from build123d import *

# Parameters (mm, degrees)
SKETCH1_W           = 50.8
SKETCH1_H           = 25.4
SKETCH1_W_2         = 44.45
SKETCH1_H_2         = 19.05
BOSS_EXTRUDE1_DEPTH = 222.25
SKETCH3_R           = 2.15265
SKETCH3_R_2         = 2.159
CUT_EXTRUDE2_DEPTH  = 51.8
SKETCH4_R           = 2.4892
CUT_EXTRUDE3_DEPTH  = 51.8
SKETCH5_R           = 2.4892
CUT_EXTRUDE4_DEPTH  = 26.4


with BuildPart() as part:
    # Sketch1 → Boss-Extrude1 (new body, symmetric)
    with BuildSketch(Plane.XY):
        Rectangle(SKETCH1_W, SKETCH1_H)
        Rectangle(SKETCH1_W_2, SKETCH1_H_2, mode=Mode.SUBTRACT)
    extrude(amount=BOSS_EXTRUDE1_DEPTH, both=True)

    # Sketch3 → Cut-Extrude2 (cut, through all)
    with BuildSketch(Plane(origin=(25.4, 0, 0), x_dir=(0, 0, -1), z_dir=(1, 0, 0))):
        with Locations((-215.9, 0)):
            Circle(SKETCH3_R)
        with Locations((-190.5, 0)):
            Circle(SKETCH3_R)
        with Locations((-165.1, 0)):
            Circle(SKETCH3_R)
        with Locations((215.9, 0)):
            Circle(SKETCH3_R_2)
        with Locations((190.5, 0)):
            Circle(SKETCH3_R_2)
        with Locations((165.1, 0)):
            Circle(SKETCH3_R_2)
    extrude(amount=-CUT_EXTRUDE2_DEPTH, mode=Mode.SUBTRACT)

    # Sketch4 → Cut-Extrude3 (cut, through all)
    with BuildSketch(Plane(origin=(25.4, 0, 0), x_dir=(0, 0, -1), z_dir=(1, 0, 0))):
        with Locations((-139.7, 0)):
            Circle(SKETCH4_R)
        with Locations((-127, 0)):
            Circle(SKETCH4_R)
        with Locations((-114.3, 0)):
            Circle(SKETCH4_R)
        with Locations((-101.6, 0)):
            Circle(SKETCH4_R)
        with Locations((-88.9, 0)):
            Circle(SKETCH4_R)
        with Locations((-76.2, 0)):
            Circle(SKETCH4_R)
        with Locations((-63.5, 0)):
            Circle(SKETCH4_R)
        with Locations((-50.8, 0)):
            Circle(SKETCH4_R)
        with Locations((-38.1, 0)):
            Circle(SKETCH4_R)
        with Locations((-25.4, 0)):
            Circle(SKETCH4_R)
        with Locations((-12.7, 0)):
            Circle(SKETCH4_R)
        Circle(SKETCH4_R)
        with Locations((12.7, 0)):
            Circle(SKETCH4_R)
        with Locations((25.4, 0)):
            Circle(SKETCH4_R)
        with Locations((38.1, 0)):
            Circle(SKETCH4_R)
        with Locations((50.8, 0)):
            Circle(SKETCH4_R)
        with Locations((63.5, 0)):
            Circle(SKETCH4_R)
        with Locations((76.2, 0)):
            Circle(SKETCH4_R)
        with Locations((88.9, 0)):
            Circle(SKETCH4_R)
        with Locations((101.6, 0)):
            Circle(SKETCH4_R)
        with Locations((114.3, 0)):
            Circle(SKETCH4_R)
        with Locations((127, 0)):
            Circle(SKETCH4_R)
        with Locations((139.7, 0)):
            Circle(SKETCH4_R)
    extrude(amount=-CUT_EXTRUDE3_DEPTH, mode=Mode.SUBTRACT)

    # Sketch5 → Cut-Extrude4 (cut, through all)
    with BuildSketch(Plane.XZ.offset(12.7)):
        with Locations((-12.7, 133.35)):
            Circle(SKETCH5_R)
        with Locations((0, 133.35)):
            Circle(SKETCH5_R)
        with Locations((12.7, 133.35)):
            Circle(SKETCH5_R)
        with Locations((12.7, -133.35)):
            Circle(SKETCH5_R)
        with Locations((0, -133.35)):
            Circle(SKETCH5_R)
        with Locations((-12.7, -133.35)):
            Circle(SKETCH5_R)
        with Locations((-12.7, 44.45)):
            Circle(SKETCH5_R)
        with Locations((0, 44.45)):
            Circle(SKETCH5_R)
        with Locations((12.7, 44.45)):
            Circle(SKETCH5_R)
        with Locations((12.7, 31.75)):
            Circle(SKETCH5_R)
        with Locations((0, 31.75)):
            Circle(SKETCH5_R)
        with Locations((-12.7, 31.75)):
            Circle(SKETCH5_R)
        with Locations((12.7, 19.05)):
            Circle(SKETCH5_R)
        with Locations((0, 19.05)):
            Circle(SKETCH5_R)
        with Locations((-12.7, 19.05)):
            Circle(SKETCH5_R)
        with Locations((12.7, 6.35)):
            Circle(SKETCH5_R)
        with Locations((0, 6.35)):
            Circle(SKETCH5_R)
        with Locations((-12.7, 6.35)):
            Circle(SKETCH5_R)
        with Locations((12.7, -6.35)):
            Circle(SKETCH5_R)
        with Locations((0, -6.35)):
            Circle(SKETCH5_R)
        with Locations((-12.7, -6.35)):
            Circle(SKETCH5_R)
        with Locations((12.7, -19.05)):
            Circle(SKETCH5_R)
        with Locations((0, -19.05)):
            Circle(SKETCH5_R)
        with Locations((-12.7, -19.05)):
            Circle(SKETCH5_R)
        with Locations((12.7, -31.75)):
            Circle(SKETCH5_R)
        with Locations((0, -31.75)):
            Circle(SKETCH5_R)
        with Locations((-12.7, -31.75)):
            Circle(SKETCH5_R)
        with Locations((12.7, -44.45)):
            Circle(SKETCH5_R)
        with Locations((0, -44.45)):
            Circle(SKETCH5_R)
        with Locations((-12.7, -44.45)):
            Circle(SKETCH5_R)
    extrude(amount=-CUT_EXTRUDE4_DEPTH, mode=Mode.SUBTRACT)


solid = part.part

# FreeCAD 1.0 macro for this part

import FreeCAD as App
import Part
import Sketcher
from FreeCAD import Vector
Q = App.Units.Quantity


def add_polygon(sketch, points):
    """Adds a closed chain of lines whose ends are joined by coincident constraints."""
    first, n = sketch.GeometryCount, len(points)
    for a, b in zip(points, points[1:] + points[:1]):
        sketch.addGeometry(Part.LineSegment(App.Vector(*a, 0), App.Vector(*b, 0)), False)
    for i in range(n):
        sketch.addConstraint(Sketcher.Constraint("Coincident", first + i, 2, first + (i + 1) % n, 1))

doc = App.newDocument("Part")
params = doc.addObject("Spreadsheet::Sheet", "Params")
for row, (alias, value) in enumerate([
    ("sketch1_width", "2 in"),
    ("sketch1_height", "1 in"),
    ("sketch1_width2", "1.75 in"),
    ("sketch1_height2", "0.75 in"),
    ("pad1_length", "17.5 in"),
    ("sketch2_diameter", "0.17 in"),
    ("sketch3_diameter", "0.196 in"),
    ("sketch4_diameter", "0.196 in"),
], start=1):
    params.set(f"A{row}", alias)
    params.set(f"B{row}", "=" + value)
    params.setAlias(f"B{row}", alias)

body = doc.addObject("PartDesign::Body", "Body")

# Sketch on XY plane
sketch1 = doc.addObject("Sketcher::SketchObject", "Sketch")
body.addObject(sketch1)
sketch1.AttachmentSupport = (doc.XY_Plane, [""])
sketch1.MapMode = "FlatFace"
add_polygon(sketch1, [(-25.4, 12.7), (-25.4, -12.7), (25.4, -12.7), (25.4, 12.7)])  # lines 0-3
add_polygon(sketch1, [(22.225, -9.525), (-22.225, -9.525), (-22.225, 9.525), (22.225, 9.525)])  # lines 4-7
sketch1.addConstraint([
    Sketcher.Constraint("Vertical", 0),
    Sketcher.Constraint("Horizontal", 1),
    Sketcher.Constraint("Vertical", 2),
    Sketcher.Constraint("Horizontal", 3),
    Sketcher.Constraint("Horizontal", 4),
    Sketcher.Constraint("Vertical", 5),
    Sketcher.Constraint("Horizontal", 6),
    Sketcher.Constraint("Vertical", 7),
    Sketcher.Constraint("Symmetric", 0, 2, 2, 2, -1, 1),
    Sketcher.Constraint("Symmetric", 4, 2, 6, 2, -1, 1),
    Sketcher.Constraint("DistanceX", 1, 1, 1, 2, Q("2 in")),
    Sketcher.Constraint("DistanceY", 0, 2, 0, 1, Q("1 in")),
    Sketcher.Constraint("DistanceX", 4, 2, 4, 1, Q("1.75 in")),
    Sketcher.Constraint("DistanceY", 5, 1, 5, 2, Q("0.75 in")),
])
sketch1.setExpression("Constraints[18]", "Params.sketch1_width")
sketch1.setExpression("Constraints[19]", "Params.sketch1_height")
sketch1.setExpression("Constraints[20]", "Params.sketch1_width2")
sketch1.setExpression("Constraints[21]", "Params.sketch1_height2")
pad1 = doc.addObject("PartDesign::Pad", "Pad")
body.addObject(pad1)
pad1.Profile = sketch1
pad1.setExpression("Length", "Params.pad1_length")
pad1.Midplane = True

# Sketch on YZ plane
sketch2 = doc.addObject("Sketcher::SketchObject", "Sketch001")
body.addObject(sketch2)
sketch2.AttachmentSupport = (doc.YZ_Plane, [""])
sketch2.MapMode = "FlatFace"
sketch2.AttachmentOffset = App.Placement(Vector(0, 0, 1 * 25.4), App.Rotation())
sketch2.addGeometry([
    Part.Circle(Vector(0, 215.9, 0), Vector(0, 0, 1), 2.15265),  # 0
    Part.Circle(Vector(0, 190.5, 0), Vector(0, 0, 1), 2.15265),  # 1
    Part.Circle(Vector(0, 165.1, 0), Vector(0, 0, 1), 2.15265),  # 2
    Part.Circle(Vector(0, -215.9, 0), Vector(0, 0, 1), 2.159),  # 3
    Part.Circle(Vector(0, -190.5, 0), Vector(0, 0, 1), 2.159),  # 4
    Part.Circle(Vector(0, -165.1, 0), Vector(0, 0, 1), 2.159),  # 5
], False)
sketch2.addConstraint([
    Sketcher.Constraint("Equal", 0, 1),
    Sketcher.Constraint("Equal", 1, 2),
    Sketcher.Constraint("Equal", 3, 4),
    Sketcher.Constraint("Equal", 4, 5),
    Sketcher.Constraint("Symmetric", 0, 3, 3, 3, -1, 1),
    Sketcher.Constraint("Symmetric", 1, 3, 4, 3, -1, 1),
    Sketcher.Constraint("Symmetric", 2, 3, 5, 3, -1, 1),
    Sketcher.Constraint("PointOnObject", 0, 3, -2),
    Sketcher.Constraint("PointOnObject", 1, 3, -2),
    Sketcher.Constraint("PointOnObject", 2, 3, -2),
    Sketcher.Constraint("Diameter", 3, Q("0.17 in")),
    Sketcher.Constraint("DistanceY", 1, 3, 0, 3, Q("1 in")),
    Sketcher.Constraint("DistanceY", 2, 3, 1, 3, Q("1 in")),
    Sketcher.Constraint("DistanceY", 3, 3, 2, 3, Q("15 in")),
    Sketcher.Constraint("Diameter", 0, Q("0.1695 in")),
])
sketch2.setExpression("Constraints[10]", "Params.sketch2_diameter")
pocket1 = doc.addObject("PartDesign::Pocket", "Pocket")
body.addObject(pocket1)
pocket1.Profile = sketch2
pocket1.Type = "ThroughAll"

# Sketch on YZ plane
sketch3 = doc.addObject("Sketcher::SketchObject", "Sketch002")
body.addObject(sketch3)
sketch3.AttachmentSupport = (doc.YZ_Plane, [""])
sketch3.MapMode = "FlatFace"
sketch3.AttachmentOffset = App.Placement(Vector(0, 0, 1 * 25.4), App.Rotation())
sketch3.addGeometry([
    Part.Circle(Vector(0, 139.7, 0), Vector(0, 0, 1), 2.4892),  # 0
    Part.Circle(Vector(0, 127, 0), Vector(0, 0, 1), 2.4892),  # 1
    Part.Circle(Vector(0, 114.3, 0), Vector(0, 0, 1), 2.4892),  # 2
    Part.Circle(Vector(0, 101.6, 0), Vector(0, 0, 1), 2.4892),  # 3
    Part.Circle(Vector(0, 88.9, 0), Vector(0, 0, 1), 2.4892),  # 4
    Part.Circle(Vector(0, 76.2, 0), Vector(0, 0, 1), 2.4892),  # 5
    Part.Circle(Vector(0, 63.5, 0), Vector(0, 0, 1), 2.4892),  # 6
    Part.Circle(Vector(0, 50.8, 0), Vector(0, 0, 1), 2.4892),  # 7
    Part.Circle(Vector(0, 38.1, 0), Vector(0, 0, 1), 2.4892),  # 8
    Part.Circle(Vector(0, 25.4, 0), Vector(0, 0, 1), 2.4892),  # 9
    Part.Circle(Vector(0, 12.7, 0), Vector(0, 0, 1), 2.4892),  # 10
    Part.Circle(Vector(0, 0, 0), Vector(0, 0, 1), 2.4892),  # 11
    Part.Circle(Vector(0, -12.7, 0), Vector(0, 0, 1), 2.4892),  # 12
    Part.Circle(Vector(0, -25.4, 0), Vector(0, 0, 1), 2.4892),  # 13
    Part.Circle(Vector(0, -38.1, 0), Vector(0, 0, 1), 2.4892),  # 14
    Part.Circle(Vector(0, -50.8, 0), Vector(0, 0, 1), 2.4892),  # 15
    Part.Circle(Vector(0, -63.5, 0), Vector(0, 0, 1), 2.4892),  # 16
    Part.Circle(Vector(0, -76.2, 0), Vector(0, 0, 1), 2.4892),  # 17
    Part.Circle(Vector(0, -88.9, 0), Vector(0, 0, 1), 2.4892),  # 18
    Part.Circle(Vector(0, -101.6, 0), Vector(0, 0, 1), 2.4892),  # 19
    Part.Circle(Vector(0, -114.3, 0), Vector(0, 0, 1), 2.4892),  # 20
    Part.Circle(Vector(0, -127, 0), Vector(0, 0, 1), 2.4892),  # 21
    Part.Circle(Vector(0, -139.7, 0), Vector(0, 0, 1), 2.4892),  # 22
], False)
sketch3.addConstraint([
    Sketcher.Constraint("Coincident", 11, 3, -1, 1),
    Sketcher.Constraint("Equal", 0, 1),
    Sketcher.Constraint("Equal", 1, 2),
    Sketcher.Constraint("Equal", 2, 3),
    Sketcher.Constraint("Equal", 3, 4),
    Sketcher.Constraint("Equal", 4, 5),
    Sketcher.Constraint("Equal", 5, 6),
    Sketcher.Constraint("Equal", 6, 7),
    Sketcher.Constraint("Equal", 7, 8),
    Sketcher.Constraint("Equal", 8, 9),
    Sketcher.Constraint("Equal", 9, 10),
    Sketcher.Constraint("Equal", 10, 11),
    Sketcher.Constraint("Equal", 11, 12),
    Sketcher.Constraint("Equal", 12, 13),
    Sketcher.Constraint("Equal", 13, 14),
    Sketcher.Constraint("Equal", 14, 15),
    Sketcher.Constraint("Equal", 15, 16),
    Sketcher.Constraint("Equal", 16, 17),
    Sketcher.Constraint("Equal", 17, 18),
    Sketcher.Constraint("Equal", 18, 19),
    Sketcher.Constraint("Equal", 19, 20),
    Sketcher.Constraint("Equal", 20, 21),
    Sketcher.Constraint("Equal", 21, 22),
    Sketcher.Constraint("Symmetric", 10, 3, 12, 3, -1, 1),
    Sketcher.Constraint("Symmetric", 9, 3, 13, 3, -1, 1),
    Sketcher.Constraint("Symmetric", 8, 3, 14, 3, -1, 1),
    Sketcher.Constraint("Symmetric", 7, 3, 15, 3, -1, 1),
    Sketcher.Constraint("Symmetric", 6, 3, 16, 3, -1, 1),
    Sketcher.Constraint("Symmetric", 5, 3, 17, 3, -1, 1),
    Sketcher.Constraint("Symmetric", 4, 3, 18, 3, -1, 1),
    Sketcher.Constraint("Symmetric", 3, 3, 19, 3, -1, 1),
    Sketcher.Constraint("Symmetric", 2, 3, 20, 3, -1, 1),
    Sketcher.Constraint("Symmetric", 1, 3, 21, 3, -1, 1),
    Sketcher.Constraint("Symmetric", 0, 3, 22, 3, -1, 1),
    Sketcher.Constraint("PointOnObject", 0, 3, -2),
    Sketcher.Constraint("PointOnObject", 1, 3, -2),
    Sketcher.Constraint("PointOnObject", 2, 3, -2),
    Sketcher.Constraint("PointOnObject", 3, 3, -2),
    Sketcher.Constraint("PointOnObject", 4, 3, -2),
    Sketcher.Constraint("PointOnObject", 5, 3, -2),
    Sketcher.Constraint("PointOnObject", 6, 3, -2),
    Sketcher.Constraint("PointOnObject", 7, 3, -2),
    Sketcher.Constraint("PointOnObject", 8, 3, -2),
    Sketcher.Constraint("PointOnObject", 9, 3, -2),
    Sketcher.Constraint("PointOnObject", 10, 3, -2),
    Sketcher.Constraint("Diameter", 0, Q("0.196 in")),
    Sketcher.Constraint("DistanceY", -1, 1, 1, 3, Q("5 in")),
    Sketcher.Constraint("DistanceY", -1, 1, 3, 3, Q("4 in")),
    Sketcher.Constraint("DistanceY", -1, 1, 5, 3, Q("3 in")),
    Sketcher.Constraint("DistanceY", -1, 1, 7, 3, Q("2 in")),
    Sketcher.Constraint("DistanceY", -1, 1, 9, 3, Q("1 in")),
    Sketcher.Constraint("DistanceY", 2, 3, 0, 3, Q("1 in")),
    Sketcher.Constraint("DistanceY", 4, 3, 2, 3, Q("1 in")),
    Sketcher.Constraint("DistanceY", 6, 3, 4, 3, Q("1 in")),
    Sketcher.Constraint("DistanceY", 8, 3, 6, 3, Q("1 in")),
    Sketcher.Constraint("DistanceY", 10, 3, 8, 3, Q("1 in")),
    Sketcher.Constraint("DistanceY", 12, 3, 10, 3, Q("1 in")),
])
sketch3.setExpression("Constraints[45]", "Params.sketch3_diameter")
pocket2 = doc.addObject("PartDesign::Pocket", "Pocket001")
body.addObject(pocket2)
pocket2.Profile = sketch3
pocket2.Type = "ThroughAll"

# Sketch on XZ plane
sketch4 = doc.addObject("Sketcher::SketchObject", "Sketch003")
body.addObject(sketch4)
sketch4.AttachmentSupport = (doc.XZ_Plane, [""])
sketch4.MapMode = "FlatFace"
sketch4.AttachmentOffset = App.Placement(Vector(0, 0, 0.5 * 25.4), App.Rotation())
sketch4.addGeometry([
    Part.Circle(Vector(-12.7, 133.35, 0), Vector(0, 0, 1), 2.4892),  # 0
    Part.Circle(Vector(0, 133.35, 0), Vector(0, 0, 1), 2.4892),  # 1
    Part.Circle(Vector(12.7, 133.35, 0), Vector(0, 0, 1), 2.4892),  # 2
    Part.Circle(Vector(12.7, -133.35, 0), Vector(0, 0, 1), 2.4892),  # 3
    Part.Circle(Vector(0, -133.35, 0), Vector(0, 0, 1), 2.4892),  # 4
    Part.Circle(Vector(-12.7, -133.35, 0), Vector(0, 0, 1), 2.4892),  # 5
    Part.Circle(Vector(-12.7, 44.45, 0), Vector(0, 0, 1), 2.4892),  # 6
    Part.Circle(Vector(0, 44.45, 0), Vector(0, 0, 1), 2.4892),  # 7
    Part.Circle(Vector(12.7, 44.45, 0), Vector(0, 0, 1), 2.4892),  # 8
    Part.Circle(Vector(12.7, 31.75, 0), Vector(0, 0, 1), 2.4892),  # 9
    Part.Circle(Vector(0, 31.75, 0), Vector(0, 0, 1), 2.4892),  # 10
    Part.Circle(Vector(-12.7, 31.75, 0), Vector(0, 0, 1), 2.4892),  # 11
    Part.Circle(Vector(12.7, 19.05, 0), Vector(0, 0, 1), 2.4892),  # 12
    Part.Circle(Vector(0, 19.05, 0), Vector(0, 0, 1), 2.4892),  # 13
    Part.Circle(Vector(-12.7, 19.05, 0), Vector(0, 0, 1), 2.4892),  # 14
    Part.Circle(Vector(12.7, 6.35, 0), Vector(0, 0, 1), 2.4892),  # 15
    Part.Circle(Vector(0, 6.35, 0), Vector(0, 0, 1), 2.4892),  # 16
    Part.Circle(Vector(-12.7, 6.35, 0), Vector(0, 0, 1), 2.4892),  # 17
    Part.Circle(Vector(12.7, -6.35, 0), Vector(0, 0, 1), 2.4892),  # 18
    Part.Circle(Vector(0, -6.35, 0), Vector(0, 0, 1), 2.4892),  # 19
    Part.Circle(Vector(-12.7, -6.35, 0), Vector(0, 0, 1), 2.4892),  # 20
    Part.Circle(Vector(12.7, -19.05, 0), Vector(0, 0, 1), 2.4892),  # 21
    Part.Circle(Vector(0, -19.05, 0), Vector(0, 0, 1), 2.4892),  # 22
    Part.Circle(Vector(-12.7, -19.05, 0), Vector(0, 0, 1), 2.4892),  # 23
    Part.Circle(Vector(12.7, -31.75, 0), Vector(0, 0, 1), 2.4892),  # 24
    Part.Circle(Vector(0, -31.75, 0), Vector(0, 0, 1), 2.4892),  # 25
    Part.Circle(Vector(-12.7, -31.75, 0), Vector(0, 0, 1), 2.4892),  # 26
    Part.Circle(Vector(12.7, -44.45, 0), Vector(0, 0, 1), 2.4892),  # 27
    Part.Circle(Vector(0, -44.45, 0), Vector(0, 0, 1), 2.4892),  # 28
    Part.Circle(Vector(-12.7, -44.45, 0), Vector(0, 0, 1), 2.4892),  # 29
], False)
sketch4.addConstraint([
    Sketcher.Constraint("Equal", 0, 1),
    Sketcher.Constraint("Equal", 1, 2),
    Sketcher.Constraint("Equal", 2, 3),
    Sketcher.Constraint("Equal", 3, 4),
    Sketcher.Constraint("Equal", 4, 5),
    Sketcher.Constraint("Equal", 5, 6),
    Sketcher.Constraint("Equal", 6, 7),
    Sketcher.Constraint("Equal", 7, 8),
    Sketcher.Constraint("Equal", 8, 9),
    Sketcher.Constraint("Equal", 9, 10),
    Sketcher.Constraint("Equal", 10, 11),
    Sketcher.Constraint("Equal", 11, 12),
    Sketcher.Constraint("Equal", 12, 13),
    Sketcher.Constraint("Equal", 13, 14),
    Sketcher.Constraint("Equal", 14, 15),
    Sketcher.Constraint("Equal", 15, 16),
    Sketcher.Constraint("Equal", 16, 17),
    Sketcher.Constraint("Equal", 17, 18),
    Sketcher.Constraint("Equal", 18, 19),
    Sketcher.Constraint("Equal", 19, 20),
    Sketcher.Constraint("Equal", 20, 21),
    Sketcher.Constraint("Equal", 21, 22),
    Sketcher.Constraint("Equal", 22, 23),
    Sketcher.Constraint("Equal", 23, 24),
    Sketcher.Constraint("Equal", 24, 25),
    Sketcher.Constraint("Equal", 25, 26),
    Sketcher.Constraint("Equal", 26, 27),
    Sketcher.Constraint("Equal", 27, 28),
    Sketcher.Constraint("Equal", 28, 29),
    Sketcher.Constraint("Symmetric", 0, 3, 3, 3, -1, 1),
    Sketcher.Constraint("Symmetric", 1, 3, 4, 3, -1, 1),
    Sketcher.Constraint("Symmetric", 2, 3, 5, 3, -1, 1),
    Sketcher.Constraint("Symmetric", 17, 3, 18, 3, -1, 1),
    Sketcher.Constraint("Symmetric", 16, 3, 19, 3, -1, 1),
    Sketcher.Constraint("Symmetric", 15, 3, 20, 3, -1, 1),
    Sketcher.Constraint("Symmetric", 14, 3, 21, 3, -1, 1),
    Sketcher.Constraint("Symmetric", 13, 3, 22, 3, -1, 1),
    Sketcher.Constraint("Symmetric", 12, 3, 23, 3, -1, 1),
    Sketcher.Constraint("Symmetric", 11, 3, 24, 3, -1, 1),
    Sketcher.Constraint("Symmetric", 10, 3, 25, 3, -1, 1),
    Sketcher.Constraint("Symmetric", 9, 3, 26, 3, -1, 1),
    Sketcher.Constraint("Symmetric", 6, 3, 27, 3, -1, 1),
    Sketcher.Constraint("Symmetric", 7, 3, 28, 3, -1, 1),
    Sketcher.Constraint("Symmetric", 8, 3, 29, 3, -1, 1),
    Sketcher.Constraint("Symmetric", 0, 3, 2, 3, -2),
    Sketcher.Constraint("Symmetric", 6, 3, 8, 3, -2),
    Sketcher.Constraint("Symmetric", 9, 3, 11, 3, -2),
    Sketcher.Constraint("Symmetric", 12, 3, 14, 3, -2),
    Sketcher.Constraint("Symmetric", 15, 3, 17, 3, -2),
    Sketcher.Constraint("PointOnObject", 1, 3, -2),
    Sketcher.Constraint("PointOnObject", 7, 3, -2),
    Sketcher.Constraint("PointOnObject", 10, 3, -2),
    Sketcher.Constraint("PointOnObject", 13, 3, -2),
    Sketcher.Constraint("PointOnObject", 16, 3, -2),
    Sketcher.Constraint("Horizontal", 0, 3, 1, 3),
    Sketcher.Constraint("Horizontal", 6, 3, 7, 3),
    Sketcher.Constraint("Horizontal", 9, 3, 10, 3),
    Sketcher.Constraint("Horizontal", 12, 3, 13, 3),
    Sketcher.Constraint("Horizontal", 15, 3, 16, 3),
    Sketcher.Constraint("Vertical", 5, 3, 6, 3),
    Sketcher.Constraint("Vertical", 8, 3, 9, 3),
    Sketcher.Constraint("Vertical", 9, 3, 12, 3),
    Sketcher.Constraint("Vertical", 12, 3, 15, 3),
    Sketcher.Constraint("Diameter", 0, Q("0.196 in")),
    Sketcher.Constraint("DistanceX", 0, 3, 2, 3, Q("1 in")),
    Sketcher.Constraint("DistanceY", 5, 3, 6, 3, Q("7 in")),
    Sketcher.Constraint("DistanceY", 9, 3, 2, 3, Q("4 in")),
    Sketcher.Constraint("DistanceY", 12, 3, 8, 3, Q("1 in")),
    Sketcher.Constraint("DistanceY", 15, 3, 9, 3, Q("1 in")),
    Sketcher.Constraint("DistanceY", 3, 3, 2, 3, Q("10.5 in")),
])
sketch4.setExpression("Constraints[63]", "Params.sketch4_diameter")
pocket3 = doc.addObject("PartDesign::Pocket", "Pocket002")
body.addObject(pocket3)
pocket3.Profile = sketch4
pocket3.Type = "ThroughAll"

doc.recompute()
